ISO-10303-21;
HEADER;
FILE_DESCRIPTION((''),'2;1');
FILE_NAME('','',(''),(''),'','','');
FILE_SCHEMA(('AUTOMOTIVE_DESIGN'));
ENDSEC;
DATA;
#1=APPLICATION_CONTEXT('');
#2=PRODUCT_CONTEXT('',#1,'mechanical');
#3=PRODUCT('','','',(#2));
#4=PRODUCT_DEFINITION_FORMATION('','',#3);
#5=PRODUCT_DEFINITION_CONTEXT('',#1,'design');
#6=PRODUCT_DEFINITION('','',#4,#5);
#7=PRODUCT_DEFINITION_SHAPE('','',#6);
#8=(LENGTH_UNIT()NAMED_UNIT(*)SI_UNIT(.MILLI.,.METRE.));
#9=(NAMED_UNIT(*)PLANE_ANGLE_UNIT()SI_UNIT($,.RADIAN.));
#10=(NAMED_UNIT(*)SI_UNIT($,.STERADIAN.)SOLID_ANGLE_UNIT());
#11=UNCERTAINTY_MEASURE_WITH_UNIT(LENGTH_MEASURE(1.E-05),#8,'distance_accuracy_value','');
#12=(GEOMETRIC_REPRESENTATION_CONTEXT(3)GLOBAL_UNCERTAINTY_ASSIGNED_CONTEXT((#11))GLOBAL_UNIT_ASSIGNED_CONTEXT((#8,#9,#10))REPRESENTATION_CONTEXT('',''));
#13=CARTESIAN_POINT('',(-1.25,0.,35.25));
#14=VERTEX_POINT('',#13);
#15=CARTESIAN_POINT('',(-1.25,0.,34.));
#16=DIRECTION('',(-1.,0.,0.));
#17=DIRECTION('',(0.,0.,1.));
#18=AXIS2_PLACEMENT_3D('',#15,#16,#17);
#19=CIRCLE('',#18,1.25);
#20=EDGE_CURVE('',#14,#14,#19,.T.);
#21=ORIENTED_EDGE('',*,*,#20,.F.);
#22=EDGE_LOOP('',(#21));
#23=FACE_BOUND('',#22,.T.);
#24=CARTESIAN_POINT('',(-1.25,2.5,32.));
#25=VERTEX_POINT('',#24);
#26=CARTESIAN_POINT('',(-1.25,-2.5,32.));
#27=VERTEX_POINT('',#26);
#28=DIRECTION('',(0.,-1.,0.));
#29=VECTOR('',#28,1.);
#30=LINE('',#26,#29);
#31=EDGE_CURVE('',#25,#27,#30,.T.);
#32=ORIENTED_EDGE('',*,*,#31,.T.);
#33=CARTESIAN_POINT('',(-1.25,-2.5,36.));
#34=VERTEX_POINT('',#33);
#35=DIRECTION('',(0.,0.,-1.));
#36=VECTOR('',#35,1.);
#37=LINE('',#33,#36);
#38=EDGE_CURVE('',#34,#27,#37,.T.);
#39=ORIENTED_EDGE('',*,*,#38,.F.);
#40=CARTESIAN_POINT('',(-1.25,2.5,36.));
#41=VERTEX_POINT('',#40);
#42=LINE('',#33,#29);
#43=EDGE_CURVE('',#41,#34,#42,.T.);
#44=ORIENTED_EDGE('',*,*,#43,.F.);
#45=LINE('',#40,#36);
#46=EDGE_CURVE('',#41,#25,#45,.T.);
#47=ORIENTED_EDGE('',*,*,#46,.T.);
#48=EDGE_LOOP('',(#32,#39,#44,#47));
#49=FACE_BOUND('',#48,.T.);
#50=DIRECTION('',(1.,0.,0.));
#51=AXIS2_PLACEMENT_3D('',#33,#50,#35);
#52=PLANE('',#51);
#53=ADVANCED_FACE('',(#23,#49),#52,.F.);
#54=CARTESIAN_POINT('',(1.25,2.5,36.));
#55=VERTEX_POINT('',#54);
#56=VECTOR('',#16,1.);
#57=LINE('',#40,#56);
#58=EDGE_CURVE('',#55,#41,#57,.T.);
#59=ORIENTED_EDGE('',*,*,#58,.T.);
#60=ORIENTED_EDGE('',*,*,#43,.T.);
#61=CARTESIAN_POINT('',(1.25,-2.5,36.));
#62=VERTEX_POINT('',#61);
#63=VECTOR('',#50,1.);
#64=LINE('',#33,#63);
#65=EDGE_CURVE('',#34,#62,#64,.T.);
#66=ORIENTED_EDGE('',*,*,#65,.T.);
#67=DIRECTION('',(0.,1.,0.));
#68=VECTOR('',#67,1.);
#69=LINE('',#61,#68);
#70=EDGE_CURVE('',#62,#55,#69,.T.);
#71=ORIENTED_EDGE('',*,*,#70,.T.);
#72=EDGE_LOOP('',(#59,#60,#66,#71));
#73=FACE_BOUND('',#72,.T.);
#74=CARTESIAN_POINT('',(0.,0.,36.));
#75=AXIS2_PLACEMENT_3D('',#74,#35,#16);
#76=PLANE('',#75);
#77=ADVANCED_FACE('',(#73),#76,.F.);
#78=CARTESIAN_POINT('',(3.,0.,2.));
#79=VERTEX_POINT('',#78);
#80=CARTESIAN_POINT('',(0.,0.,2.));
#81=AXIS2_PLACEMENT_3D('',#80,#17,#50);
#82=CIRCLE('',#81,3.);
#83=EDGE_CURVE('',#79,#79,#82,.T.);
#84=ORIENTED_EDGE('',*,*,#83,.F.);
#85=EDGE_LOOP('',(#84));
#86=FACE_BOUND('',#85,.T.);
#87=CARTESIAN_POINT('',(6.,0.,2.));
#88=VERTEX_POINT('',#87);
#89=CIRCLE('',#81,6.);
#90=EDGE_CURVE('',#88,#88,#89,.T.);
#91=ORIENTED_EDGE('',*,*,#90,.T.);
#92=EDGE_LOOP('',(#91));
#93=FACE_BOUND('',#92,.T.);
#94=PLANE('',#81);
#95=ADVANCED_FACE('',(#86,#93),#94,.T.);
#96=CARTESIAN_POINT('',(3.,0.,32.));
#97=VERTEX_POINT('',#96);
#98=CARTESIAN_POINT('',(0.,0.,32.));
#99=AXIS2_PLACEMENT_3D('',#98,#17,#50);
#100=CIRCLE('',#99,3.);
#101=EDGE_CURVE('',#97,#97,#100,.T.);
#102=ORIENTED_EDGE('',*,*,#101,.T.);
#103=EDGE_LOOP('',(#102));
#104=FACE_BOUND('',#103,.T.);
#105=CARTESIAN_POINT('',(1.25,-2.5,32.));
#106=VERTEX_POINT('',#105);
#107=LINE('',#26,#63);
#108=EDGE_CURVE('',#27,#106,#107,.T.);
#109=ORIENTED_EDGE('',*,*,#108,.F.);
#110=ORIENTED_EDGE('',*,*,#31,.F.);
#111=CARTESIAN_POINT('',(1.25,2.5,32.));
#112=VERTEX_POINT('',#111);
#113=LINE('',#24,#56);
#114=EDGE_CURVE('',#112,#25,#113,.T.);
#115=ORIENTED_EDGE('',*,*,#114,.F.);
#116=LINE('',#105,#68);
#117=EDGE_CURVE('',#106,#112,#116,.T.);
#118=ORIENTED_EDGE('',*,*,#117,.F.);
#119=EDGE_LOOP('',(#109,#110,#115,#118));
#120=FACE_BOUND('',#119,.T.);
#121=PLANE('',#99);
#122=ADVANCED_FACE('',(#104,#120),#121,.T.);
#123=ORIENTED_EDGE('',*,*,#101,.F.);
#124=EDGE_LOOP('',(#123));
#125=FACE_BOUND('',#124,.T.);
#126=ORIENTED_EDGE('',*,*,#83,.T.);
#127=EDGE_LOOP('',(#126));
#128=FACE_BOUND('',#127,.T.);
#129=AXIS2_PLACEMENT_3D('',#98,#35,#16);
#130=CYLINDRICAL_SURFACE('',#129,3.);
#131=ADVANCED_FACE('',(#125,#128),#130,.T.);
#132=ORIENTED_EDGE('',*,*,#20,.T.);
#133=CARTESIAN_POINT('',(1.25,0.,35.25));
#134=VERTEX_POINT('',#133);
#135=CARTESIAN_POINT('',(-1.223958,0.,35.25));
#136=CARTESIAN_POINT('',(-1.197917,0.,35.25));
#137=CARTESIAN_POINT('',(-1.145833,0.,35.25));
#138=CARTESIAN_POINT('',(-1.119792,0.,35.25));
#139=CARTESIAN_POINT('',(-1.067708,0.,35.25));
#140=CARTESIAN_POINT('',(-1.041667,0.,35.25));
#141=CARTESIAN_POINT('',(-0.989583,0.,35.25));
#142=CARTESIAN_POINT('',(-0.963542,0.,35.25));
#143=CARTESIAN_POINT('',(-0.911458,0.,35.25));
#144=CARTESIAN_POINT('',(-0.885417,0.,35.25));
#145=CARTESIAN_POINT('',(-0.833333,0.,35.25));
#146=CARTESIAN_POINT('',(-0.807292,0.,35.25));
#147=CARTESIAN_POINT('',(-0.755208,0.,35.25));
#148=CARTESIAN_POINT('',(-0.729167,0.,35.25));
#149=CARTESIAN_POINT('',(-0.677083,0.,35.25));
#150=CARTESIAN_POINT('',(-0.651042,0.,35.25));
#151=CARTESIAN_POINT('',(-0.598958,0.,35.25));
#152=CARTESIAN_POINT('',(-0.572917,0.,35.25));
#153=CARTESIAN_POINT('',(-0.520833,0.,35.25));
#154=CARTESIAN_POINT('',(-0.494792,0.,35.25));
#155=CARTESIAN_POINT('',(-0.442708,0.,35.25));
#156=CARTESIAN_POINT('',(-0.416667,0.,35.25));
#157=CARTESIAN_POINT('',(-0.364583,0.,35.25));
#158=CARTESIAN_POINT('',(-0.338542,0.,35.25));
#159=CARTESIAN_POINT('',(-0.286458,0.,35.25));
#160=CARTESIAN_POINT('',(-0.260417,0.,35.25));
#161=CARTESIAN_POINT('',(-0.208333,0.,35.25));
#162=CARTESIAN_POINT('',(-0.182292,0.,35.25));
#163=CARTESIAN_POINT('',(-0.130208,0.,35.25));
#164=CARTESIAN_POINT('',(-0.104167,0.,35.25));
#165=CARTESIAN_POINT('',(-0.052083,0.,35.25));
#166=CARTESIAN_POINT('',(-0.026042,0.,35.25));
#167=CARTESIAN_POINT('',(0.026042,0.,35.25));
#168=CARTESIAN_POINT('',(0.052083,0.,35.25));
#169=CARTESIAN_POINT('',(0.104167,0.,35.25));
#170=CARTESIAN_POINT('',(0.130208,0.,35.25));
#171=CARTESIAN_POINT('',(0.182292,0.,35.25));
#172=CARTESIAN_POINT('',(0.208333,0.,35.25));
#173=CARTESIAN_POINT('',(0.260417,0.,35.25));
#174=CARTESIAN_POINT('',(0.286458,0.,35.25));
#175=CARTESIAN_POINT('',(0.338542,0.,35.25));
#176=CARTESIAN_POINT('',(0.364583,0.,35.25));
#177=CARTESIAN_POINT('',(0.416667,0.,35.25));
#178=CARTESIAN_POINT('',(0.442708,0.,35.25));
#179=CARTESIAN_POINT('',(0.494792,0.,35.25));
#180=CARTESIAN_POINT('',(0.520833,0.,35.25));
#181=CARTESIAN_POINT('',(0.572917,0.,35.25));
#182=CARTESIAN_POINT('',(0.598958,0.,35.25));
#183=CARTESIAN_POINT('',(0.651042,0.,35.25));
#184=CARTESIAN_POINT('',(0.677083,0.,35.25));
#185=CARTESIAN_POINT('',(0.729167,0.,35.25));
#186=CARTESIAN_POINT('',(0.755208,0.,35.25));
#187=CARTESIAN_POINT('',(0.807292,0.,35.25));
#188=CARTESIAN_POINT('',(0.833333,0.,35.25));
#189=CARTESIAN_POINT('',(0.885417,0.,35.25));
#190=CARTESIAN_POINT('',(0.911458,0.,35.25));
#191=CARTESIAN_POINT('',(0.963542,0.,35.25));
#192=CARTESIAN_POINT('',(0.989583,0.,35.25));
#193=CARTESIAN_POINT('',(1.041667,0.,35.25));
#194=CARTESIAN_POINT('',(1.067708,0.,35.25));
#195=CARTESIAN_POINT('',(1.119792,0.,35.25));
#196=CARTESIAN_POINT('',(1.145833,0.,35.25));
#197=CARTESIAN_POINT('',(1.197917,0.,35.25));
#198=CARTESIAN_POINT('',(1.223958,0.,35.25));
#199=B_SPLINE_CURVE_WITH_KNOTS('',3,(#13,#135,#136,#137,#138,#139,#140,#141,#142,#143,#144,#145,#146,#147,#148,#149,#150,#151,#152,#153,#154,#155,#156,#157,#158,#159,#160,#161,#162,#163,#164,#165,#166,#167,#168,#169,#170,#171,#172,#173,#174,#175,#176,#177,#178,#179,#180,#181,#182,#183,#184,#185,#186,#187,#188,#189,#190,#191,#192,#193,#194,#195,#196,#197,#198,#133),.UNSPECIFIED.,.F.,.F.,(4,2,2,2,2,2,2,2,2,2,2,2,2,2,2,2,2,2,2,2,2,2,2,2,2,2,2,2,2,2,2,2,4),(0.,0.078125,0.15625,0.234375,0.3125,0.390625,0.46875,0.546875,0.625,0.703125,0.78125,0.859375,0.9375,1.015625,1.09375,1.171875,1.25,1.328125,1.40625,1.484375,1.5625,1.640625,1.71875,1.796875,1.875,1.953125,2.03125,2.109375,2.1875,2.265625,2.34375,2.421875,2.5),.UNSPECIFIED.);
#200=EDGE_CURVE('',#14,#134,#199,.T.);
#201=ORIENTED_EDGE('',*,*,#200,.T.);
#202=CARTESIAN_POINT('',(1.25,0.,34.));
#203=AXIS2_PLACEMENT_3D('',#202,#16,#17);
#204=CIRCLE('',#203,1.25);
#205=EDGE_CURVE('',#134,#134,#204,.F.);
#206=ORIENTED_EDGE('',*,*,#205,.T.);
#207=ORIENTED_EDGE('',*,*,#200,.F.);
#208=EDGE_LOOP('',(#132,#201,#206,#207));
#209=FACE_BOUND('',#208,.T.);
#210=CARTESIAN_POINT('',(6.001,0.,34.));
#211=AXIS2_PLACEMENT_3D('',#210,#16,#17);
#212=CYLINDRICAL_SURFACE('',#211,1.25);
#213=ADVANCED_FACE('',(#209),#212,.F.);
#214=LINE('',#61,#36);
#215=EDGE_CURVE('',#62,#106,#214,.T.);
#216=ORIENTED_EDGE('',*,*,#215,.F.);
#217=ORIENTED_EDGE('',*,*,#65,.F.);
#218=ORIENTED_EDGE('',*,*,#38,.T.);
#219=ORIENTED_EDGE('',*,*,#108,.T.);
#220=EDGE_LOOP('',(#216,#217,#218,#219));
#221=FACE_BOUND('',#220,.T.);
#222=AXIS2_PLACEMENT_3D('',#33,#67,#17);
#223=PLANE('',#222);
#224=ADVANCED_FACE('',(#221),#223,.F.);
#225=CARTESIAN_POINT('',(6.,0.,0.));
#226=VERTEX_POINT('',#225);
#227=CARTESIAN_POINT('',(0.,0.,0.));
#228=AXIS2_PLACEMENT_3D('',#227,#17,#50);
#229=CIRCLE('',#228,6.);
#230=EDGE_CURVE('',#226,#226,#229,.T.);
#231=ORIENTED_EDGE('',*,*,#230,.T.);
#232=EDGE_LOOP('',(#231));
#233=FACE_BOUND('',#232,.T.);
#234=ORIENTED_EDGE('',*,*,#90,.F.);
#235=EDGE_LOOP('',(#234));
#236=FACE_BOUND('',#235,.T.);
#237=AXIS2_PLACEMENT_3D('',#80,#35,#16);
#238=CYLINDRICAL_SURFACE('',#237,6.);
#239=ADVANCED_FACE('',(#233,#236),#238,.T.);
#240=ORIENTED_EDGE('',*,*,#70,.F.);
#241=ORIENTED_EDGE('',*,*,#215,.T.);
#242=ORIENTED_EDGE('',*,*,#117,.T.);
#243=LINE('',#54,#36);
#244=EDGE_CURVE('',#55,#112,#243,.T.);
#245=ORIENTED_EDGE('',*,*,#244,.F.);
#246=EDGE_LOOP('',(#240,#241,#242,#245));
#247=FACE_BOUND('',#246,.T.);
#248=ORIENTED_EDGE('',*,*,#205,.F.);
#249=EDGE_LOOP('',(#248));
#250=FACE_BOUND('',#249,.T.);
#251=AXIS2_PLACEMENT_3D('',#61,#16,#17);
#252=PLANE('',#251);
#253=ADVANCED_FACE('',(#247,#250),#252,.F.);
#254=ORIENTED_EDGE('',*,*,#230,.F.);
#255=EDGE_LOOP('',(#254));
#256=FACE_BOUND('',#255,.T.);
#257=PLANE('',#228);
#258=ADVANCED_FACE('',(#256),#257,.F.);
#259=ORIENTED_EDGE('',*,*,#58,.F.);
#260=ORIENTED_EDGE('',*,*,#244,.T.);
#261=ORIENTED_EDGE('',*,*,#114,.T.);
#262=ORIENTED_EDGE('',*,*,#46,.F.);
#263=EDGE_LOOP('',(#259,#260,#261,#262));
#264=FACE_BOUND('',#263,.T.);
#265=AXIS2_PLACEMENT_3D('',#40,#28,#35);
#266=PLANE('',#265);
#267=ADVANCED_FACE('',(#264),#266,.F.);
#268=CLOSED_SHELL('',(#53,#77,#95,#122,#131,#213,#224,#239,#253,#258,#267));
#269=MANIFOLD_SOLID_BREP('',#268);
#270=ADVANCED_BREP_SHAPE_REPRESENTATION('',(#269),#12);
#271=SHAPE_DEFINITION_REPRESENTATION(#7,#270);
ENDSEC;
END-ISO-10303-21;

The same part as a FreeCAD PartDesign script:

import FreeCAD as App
import Part
import Sketcher

V = App.Vector
Q = App.Units.Quantity

doc = App.newDocument("Part")
body = doc.addObject("PartDesign::Body", "Body")

# Sketch on XY plane
sketch1 = body.newObject("Sketcher::SketchObject", "Sketch")
sketch1.AttachmentSupport = (doc.getObject("XY_Plane"), [""])
sketch1.MapMode = "FlatFace"
sketch1.addGeometry(Part.Circle(V(0, 0, 0), V(0, 0, 1), 6), False)
sketch1.addConstraint([
    Sketcher.Constraint("Coincident", 0, 3, -1, 1),
    Sketcher.Constraint("Diameter", 0, Q("12 mm")),
])
pad1 = body.newObject("PartDesign::Pad", "Pad")
pad1.Profile = sketch1
pad1.Length = 2

# Sketch on XY plane
sketch2 = body.newObject("Sketcher::SketchObject", "Sketch001")
sketch2.AttachmentSupport = (doc.getObject("XY_Plane"), [""])
sketch2.MapMode = "FlatFace"
sketch2.AttachmentOffset = App.Placement(V(0, 0, 2), App.Rotation())
sketch2.addGeometry(Part.Circle(V(0, 0, 0), V(0, 0, 1), 3), False)
sketch2.addConstraint([
    Sketcher.Constraint("Coincident", 0, 3, -1, 1),
    Sketcher.Constraint("Diameter", 0, Q("6 mm")),
])
pad2 = body.newObject("PartDesign::Pad", "Pad001")
pad2.Profile = sketch2
pad2.Length = 30

# Sketch on XY plane
sketch3 = body.newObject("Sketcher::SketchObject", "Sketch002")
sketch3.AttachmentSupport = (doc.getObject("XY_Plane"), [""])
sketch3.MapMode = "FlatFace"
sketch3.AttachmentOffset = App.Placement(V(0, 0, 32), App.Rotation())
sketch3.addGeometry([
    Part.LineSegment(V(-1.25, 2.5, 0), V(-1.25, -2.5, 0)),
    Part.LineSegment(V(-1.25, -2.5, 0), V(1.25, -2.5, 0)),
    Part.LineSegment(V(1.25, -2.5, 0), V(1.25, 2.5, 0)),
    Part.LineSegment(V(1.25, 2.5, 0), V(-1.25, 2.5, 0)),
], False)
sketch3.addConstraint([
    Sketcher.Constraint("Coincident", 0, 2, 1, 1),
    Sketcher.Constraint("Coincident", 1, 2, 2, 1),
    Sketcher.Constraint("Coincident", 2, 2, 3, 1),
    Sketcher.Constraint("Coincident", 3, 2, 0, 1),
    Sketcher.Constraint("Vertical", 0),
    Sketcher.Constraint("Horizontal", 1),
    Sketcher.Constraint("Vertical", 2),
    Sketcher.Constraint("Horizontal", 3),
    Sketcher.Constraint("Symmetric", 0, 2, 2, 2, -1, 1),
    Sketcher.Constraint("DistanceY", 0, 2, 0, 1, Q("5 mm")),
    Sketcher.Constraint("DistanceX", 1, 1, 1, 2, Q("2.5 mm")),
])
pad3 = body.newObject("PartDesign::Pad", "Pad002")
pad3.Profile = sketch3
pad3.Length = 4

# Sketch on YZ plane
sketch4 = body.newObject("Sketcher::SketchObject", "Sketch003")
sketch4.AttachmentSupport = (doc.getObject("YZ_Plane"), [""])
sketch4.MapMode = "FlatFace"
sketch4.AttachmentOffset = App.Placement(V(0, 0, -1.25), App.Rotation())
sketch4.addGeometry(Part.Circle(V(0, 34, 0), V(0, 0, 1), 1.25), False)
sketch4.addConstraint([
    Sketcher.Constraint("PointOnObject", 0, 3, -2),
    Sketcher.Constraint("Diameter", 0, Q("2.5 mm")),
    Sketcher.Constraint("DistanceY", -1, 1, 0, 3, Q("34 mm")),
])
pocket1 = body.newObject("PartDesign::Pocket", "Pocket")
pocket1.Profile = sketch4
pocket1.Type = "UpToFirst"
pocket1.Reversed = True

doc.recompute()
